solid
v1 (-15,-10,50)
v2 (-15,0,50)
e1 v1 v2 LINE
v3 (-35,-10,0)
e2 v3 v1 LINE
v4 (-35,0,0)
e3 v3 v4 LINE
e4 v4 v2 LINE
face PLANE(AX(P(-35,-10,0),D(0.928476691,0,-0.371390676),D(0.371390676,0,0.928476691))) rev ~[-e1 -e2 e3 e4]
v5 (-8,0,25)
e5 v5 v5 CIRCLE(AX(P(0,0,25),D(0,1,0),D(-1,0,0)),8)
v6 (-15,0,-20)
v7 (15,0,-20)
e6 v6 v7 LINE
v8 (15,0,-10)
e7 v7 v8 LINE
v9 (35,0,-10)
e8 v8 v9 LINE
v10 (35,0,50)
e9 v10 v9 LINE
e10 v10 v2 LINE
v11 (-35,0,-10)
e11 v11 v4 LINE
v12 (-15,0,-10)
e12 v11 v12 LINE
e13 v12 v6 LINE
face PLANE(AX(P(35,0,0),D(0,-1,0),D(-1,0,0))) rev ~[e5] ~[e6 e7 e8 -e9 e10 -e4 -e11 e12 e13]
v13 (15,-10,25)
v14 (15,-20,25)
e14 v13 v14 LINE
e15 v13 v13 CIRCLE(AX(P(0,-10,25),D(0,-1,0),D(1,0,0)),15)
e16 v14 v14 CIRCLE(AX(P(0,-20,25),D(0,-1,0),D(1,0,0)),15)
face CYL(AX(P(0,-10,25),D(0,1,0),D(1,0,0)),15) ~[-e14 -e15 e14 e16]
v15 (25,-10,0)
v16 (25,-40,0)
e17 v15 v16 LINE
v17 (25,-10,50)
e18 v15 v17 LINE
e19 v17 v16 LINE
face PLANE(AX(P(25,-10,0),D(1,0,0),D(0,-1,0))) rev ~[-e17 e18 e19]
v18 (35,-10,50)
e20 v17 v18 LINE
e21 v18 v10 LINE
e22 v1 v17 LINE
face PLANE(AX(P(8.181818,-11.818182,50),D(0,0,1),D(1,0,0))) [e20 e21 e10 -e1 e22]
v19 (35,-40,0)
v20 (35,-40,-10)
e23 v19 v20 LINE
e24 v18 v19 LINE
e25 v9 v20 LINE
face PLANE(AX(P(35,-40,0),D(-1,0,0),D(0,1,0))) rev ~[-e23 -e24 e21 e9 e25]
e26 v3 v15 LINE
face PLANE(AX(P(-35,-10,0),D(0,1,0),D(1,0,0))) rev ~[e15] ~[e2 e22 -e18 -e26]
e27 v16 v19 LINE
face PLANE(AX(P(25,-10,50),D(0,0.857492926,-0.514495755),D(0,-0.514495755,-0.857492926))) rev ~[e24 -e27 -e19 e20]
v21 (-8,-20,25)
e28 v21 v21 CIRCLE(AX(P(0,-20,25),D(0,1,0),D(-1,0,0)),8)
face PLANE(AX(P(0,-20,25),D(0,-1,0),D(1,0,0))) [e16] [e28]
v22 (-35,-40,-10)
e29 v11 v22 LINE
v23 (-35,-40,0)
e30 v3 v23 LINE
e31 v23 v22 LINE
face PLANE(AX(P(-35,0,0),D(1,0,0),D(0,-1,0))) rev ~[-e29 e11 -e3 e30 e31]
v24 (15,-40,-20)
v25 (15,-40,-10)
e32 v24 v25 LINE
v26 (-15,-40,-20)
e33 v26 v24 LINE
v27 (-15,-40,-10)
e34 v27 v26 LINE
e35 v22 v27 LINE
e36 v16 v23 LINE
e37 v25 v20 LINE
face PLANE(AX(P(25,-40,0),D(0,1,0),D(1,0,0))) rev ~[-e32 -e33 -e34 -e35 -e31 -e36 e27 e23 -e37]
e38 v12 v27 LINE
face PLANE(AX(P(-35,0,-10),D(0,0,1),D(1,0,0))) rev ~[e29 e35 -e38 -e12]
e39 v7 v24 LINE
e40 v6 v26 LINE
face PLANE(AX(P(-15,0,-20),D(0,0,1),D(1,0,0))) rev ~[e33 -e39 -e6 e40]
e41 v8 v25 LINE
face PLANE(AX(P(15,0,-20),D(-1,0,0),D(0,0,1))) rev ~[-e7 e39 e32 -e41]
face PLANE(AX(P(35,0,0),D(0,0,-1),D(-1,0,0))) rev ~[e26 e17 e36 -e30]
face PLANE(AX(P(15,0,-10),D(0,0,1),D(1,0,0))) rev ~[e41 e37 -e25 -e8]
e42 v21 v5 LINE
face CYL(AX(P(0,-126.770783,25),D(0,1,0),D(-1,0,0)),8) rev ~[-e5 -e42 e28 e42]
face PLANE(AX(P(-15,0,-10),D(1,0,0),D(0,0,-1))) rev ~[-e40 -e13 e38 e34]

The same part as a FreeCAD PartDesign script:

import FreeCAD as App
import Part
import Sketcher


def add_polygon(sketch, points):
    """Adds a closed chain of lines whose ends are joined by coincident constraints."""
    first, n = sketch.GeometryCount, len(points)
    for a, b in zip(points, points[1:] + points[:1]):
        sketch.addGeometry(Part.LineSegment(App.Vector(*a, 0), App.Vector(*b, 0)), False)
    for i in range(n):
        sketch.addConstraint(Sketcher.Constraint("Coincident", first + i, 2, first + (i + 1) % n, 1))

doc = App.newDocument("Part")
body = doc.addObject("PartDesign::Body", "Body")

sketch1 = body.newObject("Sketcher::SketchObject", "Sketch")
sketch1.AttachmentSupport = (doc.getObject("XZ_Plane"), [""])
sketch1.MapMode = "FlatFace"
add_polygon(sketch1, [(35, 0), (-35, 0), (-35, -10), (-15, -10), (-15, -20), (15, -20), (15, -10), (35, -10)])
sketch1.addConstraint([
    Sketcher.Constraint("Horizontal", 0),
    Sketcher.Constraint("Vertical", 1),
    Sketcher.Constraint("Horizontal", 2),
    Sketcher.Constraint("Vertical", 3),
    Sketcher.Constraint("Horizontal", 4),
    Sketcher.Constraint("Vertical", 5),
    Sketcher.Constraint("Horizontal", 6),
    Sketcher.Constraint("Vertical", 7),
    Sketcher.Constraint("Symmetric", 0, 2, 7, 2, -1, 1),
    Sketcher.Constraint("Symmetric", 2, 2, 5, 2, -2),
    Sketcher.Constraint("Equal", 1, 3),
    Sketcher.Constraint("DistanceX", 0, 2, 0, 1, 70.0),
    Sketcher.Constraint("DistanceX", 2, 1, 2, 2, 20.0),
    Sketcher.Constraint("DistanceY", 1, 2, 1, 1, 10.0),
])
pad1 = body.newObject("PartDesign::Pad", "Pad")
pad1.Profile = sketch1
pad1.Length = 40

sketch2 = body.newObject("Sketcher::SketchObject", "Sketch001")
sketch2.AttachmentSupport = (doc.getObject("XY_Plane"), [""])
sketch2.MapMode = "FlatFace"
add_polygon(sketch2, [(35, 0), (-35, 0), (-35, -10), (25, -10), (25, -40), (35, -40)])
sketch2.addConstraint([
    Sketcher.Constraint("Horizontal", 0),
    Sketcher.Constraint("Vertical", 1),
    Sketcher.Constraint("Horizontal", 2),
    Sketcher.Constraint("Vertical", 3),
    Sketcher.Constraint("Horizontal", 4),
    Sketcher.Constraint("Vertical", 5),
    Sketcher.Constraint("Symmetric", 0, 2, 5, 2, -1, 1),
    Sketcher.Constraint("Equal", 4, 1),
    Sketcher.Constraint("DistanceX", 0, 2, 0, 1, 70.0),
    Sketcher.Constraint("DistanceX", 2, 1, 2, 2, 60.0),
    Sketcher.Constraint("DistanceY", 3, 2, 3, 1, 30.0),
])
pad2 = body.newObject("PartDesign::Pad", "Pad001")
pad2.Profile = sketch2
pad2.Length = 50

sketch3 = body.newObject("Sketcher::SketchObject", "Sketch002")
sketch3.AttachmentSupport = (doc.getObject("XZ_Plane"), [""])
sketch3.MapMode = "FlatFace"
sketch3.AttachmentOffset = App.Placement(App.Vector(0, 0, 10), App.Rotation())
add_polygon(sketch3, [(-15, 50), (-35, 50), (-35, 0)])
sketch3.addConstraint([
    Sketcher.Constraint("Horizontal", 0),
    Sketcher.Constraint("Vertical", 1),
    Sketcher.Constraint("PointOnObject", 1, 2, -1),
    Sketcher.Constraint("DistanceX", 0, 2, 0, 1, 20.0),
    Sketcher.Constraint("DistanceY", 1, 2, 1, 1, 50.0),
    Sketcher.Constraint("DistanceX", 0, 2, -1, 1, 35.0),
])
pocket1 = body.newObject("PartDesign::Pocket", "Pocket")
pocket1.Profile = sketch3
pocket1.Type = "ThroughAll"

sketch4 = body.newObject("Sketcher::SketchObject", "Sketch003")
sketch4.AttachmentSupport = (doc.getObject("YZ_Plane"), [""])
sketch4.MapMode = "FlatFace"
sketch4.AttachmentOffset = App.Placement(App.Vector(0, 0, 25), App.Rotation())
add_polygon(sketch4, [(-40, 50), (-10, 50), (-40, 0)])
sketch4.addConstraint([
    Sketcher.Constraint("Horizontal", 0),
    Sketcher.Constraint("Vertical", 2),
    Sketcher.Constraint("PointOnObject", 1, 2, -1),
    Sketcher.Constraint("DistanceX", 0, 1, 0, 2, 30.0),
    Sketcher.Constraint("DistanceY", 2, 1, 2, 2, 50.0),
    Sketcher.Constraint("DistanceX", 0, 2, -1, 1, 10.0),
])
pocket2 = body.newObject("PartDesign::Pocket", "Pocket001")
pocket2.Profile = sketch4
pocket2.Type = "ThroughAll"
pocket2.Reversed = True

sketch5 = body.newObject("Sketcher::SketchObject", "Sketch004")
sketch5.AttachmentSupport = (doc.getObject("XZ_Plane"), [""])
sketch5.MapMode = "FlatFace"
sketch5.AttachmentOffset = App.Placement(App.Vector(0, 0, 10), App.Rotation())
sketch5.addGeometry(Part.Circle(App.Vector(0, 25, 0), App.Vector(0, 0, 1), 15), False)
sketch5.addConstraint([
    Sketcher.Constraint("PointOnObject", 0, 3, -2),
    Sketcher.Constraint("Diameter", 0, 30.0),
    Sketcher.Constraint("DistanceY", -1, 1, 0, 3, 25.0),
])
pad3 = body.newObject("PartDesign::Pad", "Pad002")
pad3.Profile = sketch5
pad3.Length = 10

sketch6 = body.newObject("Sketcher::SketchObject", "Sketch005")
sketch6.AttachmentSupport = (doc.getObject("XZ_Plane"), [""])
sketch6.MapMode = "FlatFace"
sketch6.AttachmentOffset = App.Placement(App.Vector(0, 0, 20), App.Rotation())
sketch6.addGeometry(Part.Circle(App.Vector(0, 25, 0), App.Vector(0, 0, 1), 8), False)
sketch6.addConstraint([
    Sketcher.Constraint("PointOnObject", 0, 3, -2),
    Sketcher.Constraint("Diameter", 0, 16.0),
    Sketcher.Constraint("DistanceY", -1, 1, 0, 3, 25.0),
])
doc.recompute()
hole = body.newObject("PartDesign::Hole", "Hole")
hole.Profile = sketch6
hole.ThreadType = "None"
hole.Diameter = 16
hole.DepthType = "ThroughAll"

doc.recompute()
